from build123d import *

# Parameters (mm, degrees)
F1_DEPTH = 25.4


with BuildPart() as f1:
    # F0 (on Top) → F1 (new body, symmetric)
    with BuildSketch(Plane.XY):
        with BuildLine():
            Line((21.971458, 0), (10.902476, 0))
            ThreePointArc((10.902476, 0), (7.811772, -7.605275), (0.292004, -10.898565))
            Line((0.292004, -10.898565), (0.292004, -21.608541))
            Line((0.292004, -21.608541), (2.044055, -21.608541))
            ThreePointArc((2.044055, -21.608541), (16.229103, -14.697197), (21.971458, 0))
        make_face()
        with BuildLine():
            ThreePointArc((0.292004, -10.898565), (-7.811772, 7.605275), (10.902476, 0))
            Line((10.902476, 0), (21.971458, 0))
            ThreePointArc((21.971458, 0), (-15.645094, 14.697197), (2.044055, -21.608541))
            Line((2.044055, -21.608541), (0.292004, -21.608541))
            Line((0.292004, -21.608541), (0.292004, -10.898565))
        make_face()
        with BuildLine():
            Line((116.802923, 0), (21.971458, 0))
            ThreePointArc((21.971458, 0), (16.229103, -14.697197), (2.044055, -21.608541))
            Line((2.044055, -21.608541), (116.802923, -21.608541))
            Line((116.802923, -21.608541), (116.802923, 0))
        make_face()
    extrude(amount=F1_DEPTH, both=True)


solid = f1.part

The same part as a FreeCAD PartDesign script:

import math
import FreeCAD as App
import Part
import Sketcher
from FreeCAD import Vector

doc = App.newDocument("Part")
params = doc.addObject("Spreadsheet::Sheet", "Params")
for row, (alias, value) in enumerate([
    ("pad1_length", "2 in"),
], start=1):
    params.set(f"A{row}", alias)
    params.set(f"B{row}", "=" + value)
    params.setAlias(f"B{row}", alias)

body = doc.addObject("PartDesign::Body", "Body")

# Sketch on XY plane
sketch1 = body.newObject("Sketcher::SketchObject", "Sketch")
sketch1.AttachmentSupport = (doc.getObject("XY_Plane"), [""])
sketch1.MapMode = "FlatFace"
sketch1.addGeometry([
    Part.ArcOfCircle(Part.Circle(Vector(0.292004, 0, 0), Vector(0, 0, 1), 21.679454), math.radians(0.000001), math.radians(274.635481)),  # 0
    Part.LineSegment(Vector(2.044055, -21.608541, 0), Vector(116.802923, -21.608541, 0)),  # 1
    Part.LineSegment(Vector(116.802923, -21.608541, 0), Vector(116.802923, 0, 0)),  # 2
    Part.LineSegment(Vector(116.802923, 0, 0), Vector(21.971458, 0, 0)),  # 3
    Part.ArcOfCircle(Part.Circle(Vector(0.000001, -0.000001, 0), Vector(0, 0, 1), 10.902475), math.radians(-88.465251), math.radians(0.000004)),  # 4
    Part.ArcOfCircle(Part.Circle(Vector(0, 0, 0), Vector(0, 0, 1), 10.902476), math.radians(0), math.radians(271.534753)),  # 5
], False)
sketch1.addConstraint([
    Sketcher.Constraint("Coincident", 0, 2, 1, 1),
    Sketcher.Constraint("Coincident", 1, 2, 2, 1),
    Sketcher.Constraint("Coincident", 2, 2, 3, 1),
    Sketcher.Constraint("Coincident", 3, 2, 0, 1),
    Sketcher.Constraint("Tangent", 4, 1, 5, 2),
    Sketcher.Constraint("Coincident", 5, 1, 4, 2),
    Sketcher.Constraint("Horizontal", 1),
    Sketcher.Constraint("Vertical", 2),
    Sketcher.Constraint("Horizontal", 3),
    Sketcher.Constraint("Coincident", 4, 3, -1, 1),
    Sketcher.Constraint("PointOnObject", 0, 3, -1),
    Sketcher.Constraint("PointOnObject", 2, 2, -1),
    Sketcher.Constraint("PointOnObject", 5, 1, -1),
    Sketcher.Constraint("Vertical", 0, 3, 4, 1),
    Sketcher.Constraint("Radius", 0, 21.679454),
    Sketcher.Constraint("Radius", 4, 10.902475),
    Sketcher.Constraint("DistanceX", 1, 1, 1, 2, 114.758868),
    Sketcher.Constraint("DistanceY", 2, 1, 2, 2, 21.608541),
    Sketcher.Constraint("DistanceX", 5, 3, 3, 2, 21.971458),
])
pad1 = body.newObject("PartDesign::Pad", "Pad")
pad1.Profile = sketch1
pad1.setExpression("Length", "Params.pad1_length")
pad1.Midplane = True

doc.recompute()
